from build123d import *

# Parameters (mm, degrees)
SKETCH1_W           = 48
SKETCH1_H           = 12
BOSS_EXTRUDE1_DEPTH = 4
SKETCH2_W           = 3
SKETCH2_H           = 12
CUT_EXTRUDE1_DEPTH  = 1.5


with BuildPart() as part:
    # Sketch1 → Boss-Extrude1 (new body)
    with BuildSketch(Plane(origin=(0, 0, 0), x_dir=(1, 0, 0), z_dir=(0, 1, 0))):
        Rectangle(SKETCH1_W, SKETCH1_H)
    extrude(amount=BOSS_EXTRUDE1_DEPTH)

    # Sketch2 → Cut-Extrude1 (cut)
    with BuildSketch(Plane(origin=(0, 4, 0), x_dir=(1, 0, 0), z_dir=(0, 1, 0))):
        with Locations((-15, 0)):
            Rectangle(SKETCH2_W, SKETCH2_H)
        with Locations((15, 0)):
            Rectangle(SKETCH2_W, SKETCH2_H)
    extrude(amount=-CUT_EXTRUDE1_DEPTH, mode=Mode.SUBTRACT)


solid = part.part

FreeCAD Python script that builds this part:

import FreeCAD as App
import Part
import Sketcher
from FreeCAD import Vector

doc = App.newDocument("Part")
body = doc.addObject("PartDesign::Body", "Body")

# Sketch on XZ plane
sketch1 = doc.addObject("Sketcher::SketchObject", "Sketch")
body.addObject(sketch1)
sketch1.AttachmentSupport = (doc.XZ_Plane, [""])
sketch1.MapMode = "FlatFace"
sketch1.addGeometry([
    Part.LineSegment(Vector(-24, -6, 0), Vector(-24, 6, 0)),
    Part.LineSegment(Vector(-24, 6, 0), Vector(24, 6, 0)),
    Part.LineSegment(Vector(24, 6, 0), Vector(24, -6, 0)),
    Part.LineSegment(Vector(24, -6, 0), Vector(-24, -6, 0)),
], False)
sketch1.addConstraint([
    Sketcher.Constraint("Coincident", 0, 2, 1, 1),
    Sketcher.Constraint("Coincident", 1, 2, 2, 1),
    Sketcher.Constraint("Coincident", 2, 2, 3, 1),
    Sketcher.Constraint("Coincident", 3, 2, 0, 1),
    Sketcher.Constraint("Vertical", 0),
    Sketcher.Constraint("Horizontal", 1),
    Sketcher.Constraint("Vertical", 2),
    Sketcher.Constraint("Horizontal", 3),
    Sketcher.Constraint("Symmetric", 0, 2, 2, 2, -1, 1),
    Sketcher.Constraint("DistanceX", 1, 1, 1, 2, 48.0),
    Sketcher.Constraint("DistanceY", 0, 1, 0, 2, 12.0),
])
pad1 = doc.addObject("PartDesign::Pad", "Pad")
body.addObject(pad1)
pad1.Profile = sketch1
pad1.Length = 4
pad1.Reversed = True

# Sketch on XZ plane
sketch2 = doc.addObject("Sketcher::SketchObject", "Sketch001")
body.addObject(sketch2)
sketch2.AttachmentSupport = (doc.XZ_Plane, [""])
sketch2.MapMode = "FlatFace"
sketch2.AttachmentOffset = App.Placement(Vector(0, 0, -4), App.Rotation())
sketch2.addGeometry([
    Part.LineSegment(Vector(-16.5, -6, 0), Vector(-16.5, 6, 0)),  # 0
    Part.LineSegment(Vector(-16.5, 6, 0), Vector(-13.5, 6, 0)),  # 1
    Part.LineSegment(Vector(-13.5, 6, 0), Vector(-13.5, -6, 0)),  # 2
    Part.LineSegment(Vector(-13.5, -6, 0), Vector(-16.5, -6, 0)),  # 3
    Part.LineSegment(Vector(13.5, -6, 0), Vector(13.5, 6, 0)),  # 4
    Part.LineSegment(Vector(13.5, 6, 0), Vector(16.5, 6, 0)),  # 5
    Part.LineSegment(Vector(16.5, 6, 0), Vector(16.5, -6, 0)),  # 6
    Part.LineSegment(Vector(16.5, -6, 0), Vector(13.5, -6, 0)),  # 7
], False)
sketch2.addConstraint([
    Sketcher.Constraint("Coincident", 0, 2, 1, 1),
    Sketcher.Constraint("Coincident", 1, 2, 2, 1),
    Sketcher.Constraint("Coincident", 2, 2, 3, 1),
    Sketcher.Constraint("Coincident", 3, 2, 0, 1),
    Sketcher.Constraint("Coincident", 4, 2, 5, 1),
    Sketcher.Constraint("Coincident", 5, 2, 6, 1),
    Sketcher.Constraint("Coincident", 6, 2, 7, 1),
    Sketcher.Constraint("Coincident", 7, 2, 4, 1),
    Sketcher.Constraint("Vertical", 0),
    Sketcher.Constraint("Horizontal", 1),
    Sketcher.Constraint("Vertical", 2),
    Sketcher.Constraint("Horizontal", 3),
    Sketcher.Constraint("Vertical", 4),
    Sketcher.Constraint("Horizontal", 5),
    Sketcher.Constraint("Vertical", 6),
    Sketcher.Constraint("Horizontal", 7),
    Sketcher.Constraint("Symmetric", 2, 2, 4, 2, -1, 1),
    Sketcher.Constraint("Symmetric", 0, 2, 6, 2, -1, 1),
    Sketcher.Constraint("Horizontal", 1, 2, 4, 2),
    Sketcher.Constraint("DistanceX", 1, 1, 1, 2, 3.0),
    Sketcher.Constraint("DistanceY", 0, 1, 0, 2, 12.0),
    Sketcher.Constraint("DistanceX", 1, 2, 4, 2, 27.0),
])
pocket1 = doc.addObject("PartDesign::Pocket", "Pocket")
body.addObject(pocket1)
pocket1.Profile = sketch2
pocket1.Length = 1.5
pocket1.Reversed = True

doc.recompute()
